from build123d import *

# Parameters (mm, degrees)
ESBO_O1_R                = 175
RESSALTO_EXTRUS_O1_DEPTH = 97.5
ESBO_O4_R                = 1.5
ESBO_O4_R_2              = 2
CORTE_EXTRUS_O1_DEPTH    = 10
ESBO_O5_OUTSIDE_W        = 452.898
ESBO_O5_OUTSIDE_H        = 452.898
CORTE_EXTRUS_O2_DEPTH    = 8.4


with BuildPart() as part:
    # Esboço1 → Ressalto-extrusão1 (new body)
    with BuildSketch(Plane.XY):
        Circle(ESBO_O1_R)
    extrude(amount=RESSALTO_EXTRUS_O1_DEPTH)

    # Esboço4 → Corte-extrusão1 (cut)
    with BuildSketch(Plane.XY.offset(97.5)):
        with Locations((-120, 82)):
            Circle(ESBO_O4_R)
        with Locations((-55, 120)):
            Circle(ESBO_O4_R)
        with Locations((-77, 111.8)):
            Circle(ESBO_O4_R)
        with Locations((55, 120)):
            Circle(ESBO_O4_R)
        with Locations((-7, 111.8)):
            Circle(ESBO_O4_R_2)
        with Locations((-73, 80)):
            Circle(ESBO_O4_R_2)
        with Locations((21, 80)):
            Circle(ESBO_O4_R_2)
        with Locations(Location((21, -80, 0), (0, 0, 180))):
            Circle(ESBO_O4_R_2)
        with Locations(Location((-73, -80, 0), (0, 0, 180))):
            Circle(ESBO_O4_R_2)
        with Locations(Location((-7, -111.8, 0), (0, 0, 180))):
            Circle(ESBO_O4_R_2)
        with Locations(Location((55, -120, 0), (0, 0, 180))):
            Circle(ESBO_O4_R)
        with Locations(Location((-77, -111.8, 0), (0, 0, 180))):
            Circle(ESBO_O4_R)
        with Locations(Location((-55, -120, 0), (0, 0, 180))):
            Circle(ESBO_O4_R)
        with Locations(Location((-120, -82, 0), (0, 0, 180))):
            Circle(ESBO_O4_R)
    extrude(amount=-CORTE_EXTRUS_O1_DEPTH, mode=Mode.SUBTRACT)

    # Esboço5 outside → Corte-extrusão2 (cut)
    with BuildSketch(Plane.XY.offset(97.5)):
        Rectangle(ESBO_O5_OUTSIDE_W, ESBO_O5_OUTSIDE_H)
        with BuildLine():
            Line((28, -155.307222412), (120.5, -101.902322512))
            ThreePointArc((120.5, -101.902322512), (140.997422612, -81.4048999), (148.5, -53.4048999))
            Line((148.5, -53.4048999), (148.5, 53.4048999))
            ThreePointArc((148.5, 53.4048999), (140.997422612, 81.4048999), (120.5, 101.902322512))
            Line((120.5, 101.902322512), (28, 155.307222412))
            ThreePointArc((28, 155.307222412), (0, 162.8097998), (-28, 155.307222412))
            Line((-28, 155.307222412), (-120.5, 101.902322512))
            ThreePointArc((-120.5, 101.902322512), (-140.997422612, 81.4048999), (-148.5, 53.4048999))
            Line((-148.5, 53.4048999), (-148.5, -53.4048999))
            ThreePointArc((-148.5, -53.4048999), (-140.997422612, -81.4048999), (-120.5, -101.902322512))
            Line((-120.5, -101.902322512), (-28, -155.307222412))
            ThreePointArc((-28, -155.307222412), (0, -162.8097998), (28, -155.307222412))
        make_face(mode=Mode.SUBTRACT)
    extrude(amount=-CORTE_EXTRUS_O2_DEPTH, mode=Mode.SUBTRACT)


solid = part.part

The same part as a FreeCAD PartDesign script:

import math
import FreeCAD as App
import Part
import Sketcher
from FreeCAD import Vector
Q = App.Units.Quantity

doc = App.newDocument("Part")
params = doc.addObject("Spreadsheet::Sheet", "Params")
for row, (alias, value) in enumerate([
    ("sketch1_diameter", "350 mm"),
    ("pad1_length", "97.5 mm"),
    ("sketch2_diameter", "3 mm"),
    ("sketch2_diameter2", "4 mm"),
    ("pocket1_length", "10 mm"),
    ("sketch3_radius", "56 mm"),
    ("pocket2_length", "8.4 mm"),
], start=1):
    params.set(f"A{row}", alias)
    params.set(f"B{row}", "=" + value)
    params.setAlias(f"B{row}", alias)

body = doc.addObject("PartDesign::Body", "Body")

# Sketch on XY plane
sketch1 = doc.addObject("Sketcher::SketchObject", "Sketch")
body.addObject(sketch1)
sketch1.AttachmentSupport = (doc.XY_Plane, [""])
sketch1.MapMode = "FlatFace"
sketch1.addGeometry(Part.Circle(Vector(0, 0, 0), Vector(0, 0, 1), 175), False)
sketch1.addConstraint([
    Sketcher.Constraint("Coincident", 0, 3, -1, 1),
    Sketcher.Constraint("Diameter", 0, Q("350 mm")),
])
sketch1.setExpression("Constraints[1]", "Params.sketch1_diameter")
pad1 = doc.addObject("PartDesign::Pad", "Pad")
body.addObject(pad1)
pad1.Profile = sketch1
pad1.setExpression("Length", "Params.pad1_length")

# Sketch on XY plane
sketch2 = doc.addObject("Sketcher::SketchObject", "Sketch001")
body.addObject(sketch2)
sketch2.AttachmentSupport = (doc.XY_Plane, [""])
sketch2.MapMode = "FlatFace"
sketch2.AttachmentOffset = App.Placement(Vector(0, 0, 97.5), App.Rotation())
sketch2.addGeometry([
    Part.Circle(Vector(-120, 82, 0), Vector(0, 0, 1), 1.5),  # 0
    Part.Circle(Vector(-55, 120, 0), Vector(0, 0, 1), 1.5),  # 1
    Part.Circle(Vector(-77, 111.8, 0), Vector(0, 0, 1), 1.5),  # 2
    Part.Circle(Vector(55, 120, 0), Vector(0, 0, 1), 1.5),  # 3
    Part.Circle(Vector(-7, 111.8, 0), Vector(0, 0, 1), 2),  # 4
    Part.Circle(Vector(-73, 80, 0), Vector(0, 0, 1), 2),  # 5
    Part.Circle(Vector(21, 80, 0), Vector(0, 0, 1), 2),  # 6
    Part.Circle(Vector(21, -80, 0), Vector(0, 0, 1), 2),  # 7
    Part.Circle(Vector(-73, -80, 0), Vector(0, 0, 1), 2),  # 8
    Part.Circle(Vector(-7, -111.8, 0), Vector(0, 0, 1), 2),  # 9
    Part.Circle(Vector(55, -120, 0), Vector(0, 0, 1), 1.5),  # 10
    Part.Circle(Vector(-77, -111.8, 0), Vector(0, 0, 1), 1.5),  # 11
    Part.Circle(Vector(-55, -120, 0), Vector(0, 0, 1), 1.5),  # 12
    Part.Circle(Vector(-120, -82, 0), Vector(0, 0, 1), 1.5),  # 13
], False)
sketch2.addConstraint([
    Sketcher.Constraint("Equal", 0, 1),
    Sketcher.Constraint("Equal", 1, 2),
    Sketcher.Constraint("Equal", 2, 3),
    Sketcher.Constraint("Equal", 4, 5),
    Sketcher.Constraint("Equal", 5, 6),
    Sketcher.Constraint("Equal", 6, 7),
    Sketcher.Constraint("Equal", 7, 8),
    Sketcher.Constraint("Equal", 8, 9),
    Sketcher.Constraint("Equal", 3, 10),
    Sketcher.Constraint("Equal", 10, 11),
    Sketcher.Constraint("Equal", 11, 12),
    Sketcher.Constraint("Equal", 12, 13),
    Sketcher.Constraint("Symmetric", 1, 3, 10, 3, -1, 1),
    Sketcher.Constraint("Symmetric", 3, 3, 12, 3, -1, 1),
    Sketcher.Constraint("Symmetric", 1, 3, 3, 3, -2),
    Sketcher.Constraint("Symmetric", 6, 3, 7, 3, -1),
    Sketcher.Constraint("Symmetric", 5, 3, 8, 3, -1),
    Sketcher.Constraint("Symmetric", 4, 3, 9, 3, -1),
    Sketcher.Constraint("Symmetric", 2, 3, 11, 3, -1),
    Sketcher.Constraint("Symmetric", 0, 3, 13, 3, -1),
    Sketcher.Constraint("Horizontal", 2, 3, 4, 3),
    Sketcher.Constraint("Horizontal", 5, 3, 6, 3),
    Sketcher.Constraint("Diameter", 0, Q("3 mm")),
    Sketcher.Constraint("Diameter", 4, Q("4 mm")),
    Sketcher.Constraint("DistanceX", 0, 3, -1, 1, Q("120 mm")),
    Sketcher.Constraint("DistanceY", -1, 1, 0, 3, Q("82 mm")),
    Sketcher.Constraint("DistanceX", 1, 3, -1, 1, Q("55 mm")),
    Sketcher.Constraint("DistanceY", -1, 1, 1, 3, Q("120 mm")),
    Sketcher.Constraint("DistanceX", 2, 3, -1, 1, Q("77 mm")),
    Sketcher.Constraint("DistanceX", 4, 3, -1, 1, Q("7 mm")),
    Sketcher.Constraint("DistanceX", 5, 3, -1, 1, Q("73 mm")),
    Sketcher.Constraint("DistanceY", -1, 1, 5, 3, Q("80 mm")),
    Sketcher.Constraint("DistanceX", -1, 1, 6, 3, Q("21 mm")),
    Sketcher.Constraint("DistanceY", -1, 1, 2, 3, Q("111.8 mm")),
])
sketch2.setExpression("Constraints[22]", "Params.sketch2_diameter")
sketch2.setExpression("Constraints[23]", "Params.sketch2_diameter2")
pocket1 = doc.addObject("PartDesign::Pocket", "Pocket")
body.addObject(pocket1)
pocket1.Profile = sketch2
pocket1.setExpression("Length", "Params.pocket1_length")

# Sketch on XY plane
sketch3 = doc.addObject("Sketcher::SketchObject", "Sketch002")
body.addObject(sketch3)
sketch3.AttachmentSupport = (doc.XY_Plane, [""])
sketch3.MapMode = "FlatFace"
sketch3.AttachmentOffset = App.Placement(Vector(0, 0, 97.5), App.Rotation())
sketch3.addGeometry([
    Part.LineSegment(Vector(-226, 226, 0), Vector(-226, -226, 0)),  # 0
    Part.LineSegment(Vector(-226, -226, 0), Vector(226, -226, 0)),  # 1
    Part.LineSegment(Vector(226, -226, 0), Vector(226, 226, 0)),  # 2
    Part.LineSegment(Vector(226, 226, 0), Vector(-226, 226, 0)),  # 3
    Part.LineSegment(Vector(120, -102, 0), Vector(28, -155, 0)),  # 4
    Part.ArcOfCircle(Part.Circle(Vector(0, -107, 0), Vector(0, 0, 1), 56), math.radians(-120), math.radians(-60)),  # 5
    Part.LineSegment(Vector(-28, -155, 0), Vector(-120, -102, 0)),  # 6
    Part.ArcOfCircle(Part.Circle(Vector(-92, -53, 0), Vector(0, 0, 1), 56), math.radians(180), math.radians(240)),  # 7
    Part.LineSegment(Vector(-148, -53, 0), Vector(-148, 53, 0)),  # 8
    Part.ArcOfCircle(Part.Circle(Vector(-92, 53, 0), Vector(0, 0, 1), 56), math.radians(120), math.radians(180)),  # 9
    Part.LineSegment(Vector(-120, 102, 0), Vector(-28, 155, 0)),  # 10
    Part.ArcOfCircle(Part.Circle(Vector(0, 107, 0), Vector(0, 0, 1), 56), math.radians(60), math.radians(120)),  # 11
    Part.LineSegment(Vector(28, 155, 0), Vector(120, 102, 0)),  # 12
    Part.ArcOfCircle(Part.Circle(Vector(92, 53, 0), Vector(0, 0, 1), 56), math.radians(0), math.radians(60)),  # 13
    Part.LineSegment(Vector(148, 53, 0), Vector(148, -53, 0)),  # 14
    Part.ArcOfCircle(Part.Circle(Vector(92, -53, 0), Vector(0, 0, 1), 56), math.radians(-60), math.radians(0)),  # 15
], False)
sketch3.addConstraint([
    Sketcher.Constraint("Coincident", 0, 2, 1, 1),
    Sketcher.Constraint("Coincident", 1, 2, 2, 1),
    Sketcher.Constraint("Coincident", 2, 2, 3, 1),
    Sketcher.Constraint("Coincident", 3, 2, 0, 1),
    Sketcher.Constraint("Tangent", 4, 2, 5, 2),
    Sketcher.Constraint("Tangent", 5, 1, 6, 1),
    Sketcher.Constraint("Tangent", 6, 2, 7, 2),
    Sketcher.Constraint("Tangent", 7, 1, 8, 1),
    Sketcher.Constraint("Tangent", 8, 2, 9, 2),
    Sketcher.Constraint("Tangent", 9, 1, 10, 1),
    Sketcher.Constraint("Tangent", 10, 2, 11, 2),
    Sketcher.Constraint("Tangent", 11, 1, 12, 1),
    Sketcher.Constraint("Tangent", 12, 2, 13, 2),
    Sketcher.Constraint("Tangent", 13, 1, 14, 1),
    Sketcher.Constraint("Tangent", 14, 2, 15, 2),
    Sketcher.Constraint("Tangent", 15, 1, 4, 1),
    Sketcher.Constraint("Vertical", 0),
    Sketcher.Constraint("Horizontal", 1),
    Sketcher.Constraint("Vertical", 2),
    Sketcher.Constraint("Horizontal", 3),
    Sketcher.Constraint("Vertical", 8),
    Sketcher.Constraint("Vertical", 14),
    Sketcher.Constraint("Equal", 5, 7),
    Sketcher.Constraint("Equal", 7, 9),
    Sketcher.Constraint("Equal", 9, 11),
    Sketcher.Constraint("Equal", 11, 13),
    Sketcher.Constraint("Equal", 13, 15),
    Sketcher.Constraint("Symmetric", 5, 3, 11, 3, -1, 1),
    Sketcher.Constraint("Symmetric", 7, 3, 13, 3, -1, 1),
    Sketcher.Constraint("Symmetric", 0, 2, 2, 2, -1, 1),
    Sketcher.Constraint("Symmetric", 4, 2, 5, 1, -2),
    Sketcher.Constraint("Parallel", 4, 10),
    Sketcher.Constraint("Equal", 3, 0),
    Sketcher.Constraint("Radius", 5, Q("56 mm")),
    Sketcher.Constraint("Angle", 4, Q("-150 deg")),
    Sketcher.Constraint("DistanceX", 9, 3, 13, 3, Q("185 mm")),
    Sketcher.Constraint("DistanceX", 1, 1, 1, 2, Q("452.898 mm")),
    Sketcher.Constraint("DistanceY", 8, 1, 8, 2, Q("106.8098 mm")),
])
sketch3.setExpression("Constraints[33]", "Params.sketch3_radius")
pocket2 = doc.addObject("PartDesign::Pocket", "Pocket001")
body.addObject(pocket2)
pocket2.Profile = sketch3
pocket2.setExpression("Length", "Params.pocket2_length")

doc.recompute()
